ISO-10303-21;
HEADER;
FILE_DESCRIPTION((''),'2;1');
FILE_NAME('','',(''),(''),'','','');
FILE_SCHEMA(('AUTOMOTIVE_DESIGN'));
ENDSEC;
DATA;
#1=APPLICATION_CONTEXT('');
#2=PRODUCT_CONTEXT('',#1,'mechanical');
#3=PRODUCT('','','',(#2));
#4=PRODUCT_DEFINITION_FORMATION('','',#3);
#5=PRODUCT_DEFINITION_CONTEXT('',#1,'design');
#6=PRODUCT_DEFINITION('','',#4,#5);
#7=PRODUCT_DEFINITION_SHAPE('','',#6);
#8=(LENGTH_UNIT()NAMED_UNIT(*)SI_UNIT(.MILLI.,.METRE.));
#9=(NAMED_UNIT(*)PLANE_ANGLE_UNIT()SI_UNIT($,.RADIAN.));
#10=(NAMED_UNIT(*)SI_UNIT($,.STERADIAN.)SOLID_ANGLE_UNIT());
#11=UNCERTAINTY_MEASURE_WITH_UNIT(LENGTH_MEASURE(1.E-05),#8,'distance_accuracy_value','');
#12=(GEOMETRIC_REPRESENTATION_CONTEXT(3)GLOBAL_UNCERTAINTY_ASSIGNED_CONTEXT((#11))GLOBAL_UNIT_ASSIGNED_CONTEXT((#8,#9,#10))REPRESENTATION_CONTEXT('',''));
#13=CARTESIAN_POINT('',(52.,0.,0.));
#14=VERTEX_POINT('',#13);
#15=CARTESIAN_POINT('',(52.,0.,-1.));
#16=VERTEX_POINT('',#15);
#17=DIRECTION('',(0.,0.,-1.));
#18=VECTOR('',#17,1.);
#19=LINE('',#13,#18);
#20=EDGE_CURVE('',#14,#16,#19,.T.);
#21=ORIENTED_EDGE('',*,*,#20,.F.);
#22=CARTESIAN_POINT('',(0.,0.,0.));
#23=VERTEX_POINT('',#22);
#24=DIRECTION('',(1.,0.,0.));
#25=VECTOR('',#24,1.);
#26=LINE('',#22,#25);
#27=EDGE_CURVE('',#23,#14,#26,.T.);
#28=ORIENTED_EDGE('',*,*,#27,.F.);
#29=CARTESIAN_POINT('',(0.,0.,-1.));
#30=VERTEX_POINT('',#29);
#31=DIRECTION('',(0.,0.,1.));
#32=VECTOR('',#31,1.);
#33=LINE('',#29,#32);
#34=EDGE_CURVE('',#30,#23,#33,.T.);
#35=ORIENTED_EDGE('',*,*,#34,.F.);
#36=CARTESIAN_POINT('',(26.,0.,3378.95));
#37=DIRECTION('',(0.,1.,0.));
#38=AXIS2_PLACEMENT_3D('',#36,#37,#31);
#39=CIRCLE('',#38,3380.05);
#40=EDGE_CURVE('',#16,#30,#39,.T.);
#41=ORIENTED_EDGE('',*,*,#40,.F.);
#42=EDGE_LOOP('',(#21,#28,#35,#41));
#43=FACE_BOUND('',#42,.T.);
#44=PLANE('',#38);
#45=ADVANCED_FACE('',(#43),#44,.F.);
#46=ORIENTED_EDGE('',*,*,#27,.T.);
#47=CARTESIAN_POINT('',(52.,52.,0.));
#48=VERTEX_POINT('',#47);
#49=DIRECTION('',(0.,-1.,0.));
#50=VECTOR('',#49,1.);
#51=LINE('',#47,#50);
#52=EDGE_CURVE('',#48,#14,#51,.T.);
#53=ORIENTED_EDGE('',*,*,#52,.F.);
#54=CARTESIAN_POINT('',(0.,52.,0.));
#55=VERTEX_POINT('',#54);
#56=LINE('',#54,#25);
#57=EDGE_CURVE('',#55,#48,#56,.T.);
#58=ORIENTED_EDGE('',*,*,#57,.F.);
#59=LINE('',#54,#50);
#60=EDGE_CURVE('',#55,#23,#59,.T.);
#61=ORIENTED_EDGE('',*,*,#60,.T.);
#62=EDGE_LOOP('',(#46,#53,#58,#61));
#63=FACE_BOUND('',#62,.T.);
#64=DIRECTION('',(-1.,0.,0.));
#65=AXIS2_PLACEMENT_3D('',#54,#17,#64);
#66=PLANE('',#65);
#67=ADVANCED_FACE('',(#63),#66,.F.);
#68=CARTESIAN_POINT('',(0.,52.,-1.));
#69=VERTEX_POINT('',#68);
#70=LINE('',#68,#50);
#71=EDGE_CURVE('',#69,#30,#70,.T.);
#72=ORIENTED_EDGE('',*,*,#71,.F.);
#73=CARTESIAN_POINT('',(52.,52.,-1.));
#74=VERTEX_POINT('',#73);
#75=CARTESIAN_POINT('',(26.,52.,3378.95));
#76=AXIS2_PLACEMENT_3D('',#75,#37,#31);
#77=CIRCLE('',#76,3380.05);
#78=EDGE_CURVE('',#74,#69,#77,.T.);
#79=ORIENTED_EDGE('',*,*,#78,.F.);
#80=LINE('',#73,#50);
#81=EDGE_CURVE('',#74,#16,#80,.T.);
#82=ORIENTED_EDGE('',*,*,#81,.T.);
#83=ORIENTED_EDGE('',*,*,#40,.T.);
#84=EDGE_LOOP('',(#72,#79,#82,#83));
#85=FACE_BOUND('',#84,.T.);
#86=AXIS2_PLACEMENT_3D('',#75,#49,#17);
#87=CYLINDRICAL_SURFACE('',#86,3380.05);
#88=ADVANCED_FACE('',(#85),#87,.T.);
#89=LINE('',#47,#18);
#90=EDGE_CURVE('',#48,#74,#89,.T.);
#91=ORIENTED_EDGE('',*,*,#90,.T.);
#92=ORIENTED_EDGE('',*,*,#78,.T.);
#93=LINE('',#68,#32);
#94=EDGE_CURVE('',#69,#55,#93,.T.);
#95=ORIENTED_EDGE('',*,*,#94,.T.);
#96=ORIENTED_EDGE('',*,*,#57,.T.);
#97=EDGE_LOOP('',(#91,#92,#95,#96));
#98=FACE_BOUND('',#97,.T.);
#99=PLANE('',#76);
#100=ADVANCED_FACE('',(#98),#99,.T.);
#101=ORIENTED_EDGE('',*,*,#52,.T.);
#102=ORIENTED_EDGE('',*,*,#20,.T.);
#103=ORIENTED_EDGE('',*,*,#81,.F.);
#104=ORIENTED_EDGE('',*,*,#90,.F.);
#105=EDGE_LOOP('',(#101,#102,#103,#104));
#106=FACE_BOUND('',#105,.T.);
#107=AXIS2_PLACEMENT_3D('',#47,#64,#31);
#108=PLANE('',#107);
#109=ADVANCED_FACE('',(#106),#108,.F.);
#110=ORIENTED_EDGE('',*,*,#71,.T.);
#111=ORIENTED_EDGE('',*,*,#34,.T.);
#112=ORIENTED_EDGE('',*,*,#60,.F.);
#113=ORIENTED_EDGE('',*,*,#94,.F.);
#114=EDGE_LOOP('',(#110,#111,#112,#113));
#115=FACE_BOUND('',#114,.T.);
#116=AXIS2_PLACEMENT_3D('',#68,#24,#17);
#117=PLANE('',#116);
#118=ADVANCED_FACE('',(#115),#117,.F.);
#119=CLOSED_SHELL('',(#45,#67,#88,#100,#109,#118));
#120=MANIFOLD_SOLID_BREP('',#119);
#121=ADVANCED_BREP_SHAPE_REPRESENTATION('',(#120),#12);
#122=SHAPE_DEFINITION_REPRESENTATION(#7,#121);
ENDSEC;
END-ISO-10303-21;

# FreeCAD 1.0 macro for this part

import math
import FreeCAD as App
import Part
import Sketcher
from FreeCAD import Vector
Q = App.Units.Quantity

doc = App.newDocument("Part")
body = doc.addObject("PartDesign::Body", "Body")

# Sketch on XZ plane
sketch1 = body.newObject("Sketcher::SketchObject", "Sketch")
sketch1.AttachmentSupport = (doc.getObject("XZ_Plane"), [""])
sketch1.MapMode = "FlatFace"
sketch1.addGeometry(Part.LineSegment(Vector(0, 0, 0), Vector(52, 0, 0)), False)
sketch1.addGeometry(Part.LineSegment(Vector(52, 0, 0), Vector(52, -1, 0)), False)
sketch1.addGeometry(Part.ArcOfCircle(Part.Circle(Vector(26, 3378.9, 0), Vector(0, 0, 1), 3380), math.radians(-90.44), math.radians(-89.56)), False)
sketch1.addGeometry(Part.LineSegment(Vector(0, -1, 0), Vector(0, 0, 0)), False)
sketch1.addConstraint(Sketcher.Constraint("Coincident", 0, 2, 1, 1))
sketch1.addConstraint(Sketcher.Constraint("Coincident", 1, 2, 2, 2))
sketch1.addConstraint(Sketcher.Constraint("Coincident", 2, 1, 3, 1))
sketch1.addConstraint(Sketcher.Constraint("Coincident", 3, 2, 0, 1))
sketch1.addConstraint(Sketcher.Constraint("Horizontal", 0))
sketch1.addConstraint(Sketcher.Constraint("Vertical", 1))
sketch1.addConstraint(Sketcher.Constraint("Vertical", 3))
sketch1.addConstraint(Sketcher.Constraint("Coincident", 3, 2, -1, 1))
sketch1.addConstraint(Sketcher.Constraint("Equal", 1, 3))
sketch1.addConstraint(Sketcher.Constraint("DistanceX", 0, 1, 0, 2, Q("52 mm")))
sketch1.addConstraint(Sketcher.Constraint("DistanceY", 1, 2, 1, 1, Q("1 mm")))
sketch1.addConstraint(Sketcher.Constraint("Radius", 2, Q("3380.05 mm")))
pad1 = body.newObject("PartDesign::Pad", "Pad")
pad1.Profile = sketch1
pad1.Length = 52
pad1.Reversed = True

doc.recompute()
